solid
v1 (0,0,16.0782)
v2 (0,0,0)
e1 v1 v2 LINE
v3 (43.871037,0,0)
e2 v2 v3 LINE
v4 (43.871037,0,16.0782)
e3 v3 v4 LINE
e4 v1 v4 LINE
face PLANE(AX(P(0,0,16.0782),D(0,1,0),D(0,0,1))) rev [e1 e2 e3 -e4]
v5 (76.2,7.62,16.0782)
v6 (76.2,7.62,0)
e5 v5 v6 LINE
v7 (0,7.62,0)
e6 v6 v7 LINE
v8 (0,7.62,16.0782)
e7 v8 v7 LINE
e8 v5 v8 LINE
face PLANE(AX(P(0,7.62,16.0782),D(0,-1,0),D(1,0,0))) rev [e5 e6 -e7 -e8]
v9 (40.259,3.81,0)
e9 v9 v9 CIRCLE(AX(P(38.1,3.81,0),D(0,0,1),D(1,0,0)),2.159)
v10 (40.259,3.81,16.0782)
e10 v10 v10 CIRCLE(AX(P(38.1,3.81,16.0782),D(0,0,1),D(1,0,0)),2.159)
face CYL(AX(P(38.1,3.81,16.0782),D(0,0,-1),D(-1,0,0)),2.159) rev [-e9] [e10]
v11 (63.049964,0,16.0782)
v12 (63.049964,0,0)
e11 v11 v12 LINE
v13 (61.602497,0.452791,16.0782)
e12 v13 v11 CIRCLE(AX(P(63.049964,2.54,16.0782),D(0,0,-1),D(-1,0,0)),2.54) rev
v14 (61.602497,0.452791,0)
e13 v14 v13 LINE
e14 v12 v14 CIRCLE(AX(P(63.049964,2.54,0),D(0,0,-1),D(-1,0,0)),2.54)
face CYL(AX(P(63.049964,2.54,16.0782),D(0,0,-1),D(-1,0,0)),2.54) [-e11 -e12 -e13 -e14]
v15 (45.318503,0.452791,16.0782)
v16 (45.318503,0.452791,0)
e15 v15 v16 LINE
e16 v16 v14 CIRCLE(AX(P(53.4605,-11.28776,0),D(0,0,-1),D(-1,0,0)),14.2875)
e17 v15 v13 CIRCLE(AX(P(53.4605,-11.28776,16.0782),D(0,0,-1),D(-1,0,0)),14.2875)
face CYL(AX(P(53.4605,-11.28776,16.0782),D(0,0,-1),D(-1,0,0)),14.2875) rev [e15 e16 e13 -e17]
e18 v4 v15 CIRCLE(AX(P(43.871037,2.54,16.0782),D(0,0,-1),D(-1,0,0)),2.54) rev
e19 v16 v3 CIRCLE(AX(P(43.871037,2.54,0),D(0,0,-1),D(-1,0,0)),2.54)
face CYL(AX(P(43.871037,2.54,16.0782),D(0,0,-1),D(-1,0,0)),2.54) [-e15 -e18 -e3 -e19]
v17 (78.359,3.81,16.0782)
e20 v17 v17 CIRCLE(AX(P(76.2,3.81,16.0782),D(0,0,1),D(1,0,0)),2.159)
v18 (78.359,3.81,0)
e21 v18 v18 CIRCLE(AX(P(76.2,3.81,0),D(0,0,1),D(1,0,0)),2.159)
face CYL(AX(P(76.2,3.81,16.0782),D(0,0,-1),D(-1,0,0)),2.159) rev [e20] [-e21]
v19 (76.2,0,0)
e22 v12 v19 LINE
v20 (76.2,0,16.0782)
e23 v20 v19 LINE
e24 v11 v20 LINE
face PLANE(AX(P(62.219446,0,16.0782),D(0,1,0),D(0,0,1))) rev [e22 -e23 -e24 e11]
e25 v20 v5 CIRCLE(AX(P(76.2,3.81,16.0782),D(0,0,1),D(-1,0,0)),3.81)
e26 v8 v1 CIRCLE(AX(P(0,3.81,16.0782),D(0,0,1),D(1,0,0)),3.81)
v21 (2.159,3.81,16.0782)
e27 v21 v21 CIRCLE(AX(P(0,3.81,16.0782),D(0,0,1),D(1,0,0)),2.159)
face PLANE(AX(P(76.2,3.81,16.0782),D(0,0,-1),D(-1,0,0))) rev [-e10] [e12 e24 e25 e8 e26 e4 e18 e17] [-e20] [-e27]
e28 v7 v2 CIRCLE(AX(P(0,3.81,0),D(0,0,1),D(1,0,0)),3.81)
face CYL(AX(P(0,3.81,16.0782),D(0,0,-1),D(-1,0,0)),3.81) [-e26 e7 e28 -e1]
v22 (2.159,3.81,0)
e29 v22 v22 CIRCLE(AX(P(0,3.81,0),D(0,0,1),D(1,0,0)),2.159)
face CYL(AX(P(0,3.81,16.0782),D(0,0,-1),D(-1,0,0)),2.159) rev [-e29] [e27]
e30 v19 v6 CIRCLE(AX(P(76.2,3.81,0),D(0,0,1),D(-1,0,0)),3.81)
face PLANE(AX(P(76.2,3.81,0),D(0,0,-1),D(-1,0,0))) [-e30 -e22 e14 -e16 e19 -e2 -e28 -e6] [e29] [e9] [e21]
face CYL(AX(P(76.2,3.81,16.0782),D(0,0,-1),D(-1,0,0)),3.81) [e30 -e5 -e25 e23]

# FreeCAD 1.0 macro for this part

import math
import FreeCAD as App
import Part
import Sketcher

V = App.Vector
Q = App.Units.Quantity


def edges_at(feature, points):
    """Names of the edges that pass closest to the given points."""
    edges = feature.Shape.Edges
    near = lambda p: min(range(len(edges)), key=lambda i: edges[i].distToShape(Part.Vertex(*p))[0])
    return sorted({f"Edge{near(p) + 1}" for p in points})

doc = App.newDocument("Part")
body = doc.addObject("PartDesign::Body", "Body")

sketch1 = body.newObject("Sketcher::SketchObject", "Sketch")
sketch1.AttachmentSupport = (doc.getObject("XY_Plane"), [""])
sketch1.MapMode = "FlatFace"
sketch1.addGeometry([
    Part.LineSegment(V(76.2, 7.6, 0), V(0, 7.6, 0)),
    Part.ArcOfCircle(Part.Circle(V(0, 3.8, 0), V(0, 0, 1), 3.8), math.radians(90), math.radians(270)),
    Part.LineSegment(V(0, 0, 0), V(44.7, 0, 0)),
    Part.ArcOfCircle(Part.Circle(V(53.5, -11.3, 0), V(0, 0, 1), 14.3), math.radians(52), math.radians(128)),
    Part.LineSegment(V(62.2, 0, 0), V(76.2, 0, 0)),
    Part.ArcOfCircle(Part.Circle(V(76.2, 3.8, 0), V(0, 0, 1), 3.8), math.radians(-90), math.radians(90)),
    Part.Circle(V(76.2, 3.8, 0), V(0, 0, 1), 2.2),
    Part.Circle(V(38.1, 3.8, 0), V(0, 0, 1), 2.2),
    Part.Circle(V(0, 3.8, 0), V(0, 0, 1), 2.2),
], False)
sketch1.addConstraint([
    Sketcher.Constraint("Tangent", 0, 2, 1, 1),
    Sketcher.Constraint("Tangent", 1, 2, 2, 1),
    Sketcher.Constraint("Coincident", 2, 2, 3, 2),
    Sketcher.Constraint("Coincident", 3, 1, 4, 1),
    Sketcher.Constraint("Tangent", 4, 2, 5, 1),
    Sketcher.Constraint("Tangent", 5, 2, 0, 1),
    Sketcher.Constraint("Horizontal", 0),
    Sketcher.Constraint("Horizontal", 2),
    Sketcher.Constraint("Horizontal", 4),
    Sketcher.Constraint("Coincident", 1, 2, -1, 1),
    Sketcher.Constraint("Coincident", 6, 3, 5, 3),
    Sketcher.Constraint("Coincident", 8, 3, 1, 3),
    Sketcher.Constraint("Equal", 1, 5),
    Sketcher.Constraint("Equal", 6, 7),
    Sketcher.Constraint("Equal", 7, 8),
    Sketcher.Constraint("Horizontal", 6, 3, 7, 3),
    Sketcher.Constraint("Diameter", 6, Q("0.17 in")),
    Sketcher.Constraint("DistanceX", 0, 2, 0, 1, Q("3 in")),
    Sketcher.Constraint("Radius", 1, Q("0.15 in")),
    Sketcher.Constraint("Radius", 3, Q("0.5625 in")),
    Sketcher.Constraint("DistanceX", -1, 1, 7, 3, Q("1.5 in")),
    Sketcher.Constraint("DistanceY", 3, 3, -1, 1, Q("0.4444 in")),
    Sketcher.Constraint("DistanceX", -1, 1, 3, 3, 53.4605),
])
pad1 = body.newObject("PartDesign::Pad", "Pad")
pad1.Profile = sketch1
pad1.Length = Q("0.633 in")
doc.recompute()

fillet = body.newObject("PartDesign::Fillet", "Fillet")
fillet.Base = (pad1, edges_at(pad1, [(62.219, 0, 8.039), (44.702, 0, 8.039)]))
fillet.Radius = Q("0.1 in")

doc.recompute()
